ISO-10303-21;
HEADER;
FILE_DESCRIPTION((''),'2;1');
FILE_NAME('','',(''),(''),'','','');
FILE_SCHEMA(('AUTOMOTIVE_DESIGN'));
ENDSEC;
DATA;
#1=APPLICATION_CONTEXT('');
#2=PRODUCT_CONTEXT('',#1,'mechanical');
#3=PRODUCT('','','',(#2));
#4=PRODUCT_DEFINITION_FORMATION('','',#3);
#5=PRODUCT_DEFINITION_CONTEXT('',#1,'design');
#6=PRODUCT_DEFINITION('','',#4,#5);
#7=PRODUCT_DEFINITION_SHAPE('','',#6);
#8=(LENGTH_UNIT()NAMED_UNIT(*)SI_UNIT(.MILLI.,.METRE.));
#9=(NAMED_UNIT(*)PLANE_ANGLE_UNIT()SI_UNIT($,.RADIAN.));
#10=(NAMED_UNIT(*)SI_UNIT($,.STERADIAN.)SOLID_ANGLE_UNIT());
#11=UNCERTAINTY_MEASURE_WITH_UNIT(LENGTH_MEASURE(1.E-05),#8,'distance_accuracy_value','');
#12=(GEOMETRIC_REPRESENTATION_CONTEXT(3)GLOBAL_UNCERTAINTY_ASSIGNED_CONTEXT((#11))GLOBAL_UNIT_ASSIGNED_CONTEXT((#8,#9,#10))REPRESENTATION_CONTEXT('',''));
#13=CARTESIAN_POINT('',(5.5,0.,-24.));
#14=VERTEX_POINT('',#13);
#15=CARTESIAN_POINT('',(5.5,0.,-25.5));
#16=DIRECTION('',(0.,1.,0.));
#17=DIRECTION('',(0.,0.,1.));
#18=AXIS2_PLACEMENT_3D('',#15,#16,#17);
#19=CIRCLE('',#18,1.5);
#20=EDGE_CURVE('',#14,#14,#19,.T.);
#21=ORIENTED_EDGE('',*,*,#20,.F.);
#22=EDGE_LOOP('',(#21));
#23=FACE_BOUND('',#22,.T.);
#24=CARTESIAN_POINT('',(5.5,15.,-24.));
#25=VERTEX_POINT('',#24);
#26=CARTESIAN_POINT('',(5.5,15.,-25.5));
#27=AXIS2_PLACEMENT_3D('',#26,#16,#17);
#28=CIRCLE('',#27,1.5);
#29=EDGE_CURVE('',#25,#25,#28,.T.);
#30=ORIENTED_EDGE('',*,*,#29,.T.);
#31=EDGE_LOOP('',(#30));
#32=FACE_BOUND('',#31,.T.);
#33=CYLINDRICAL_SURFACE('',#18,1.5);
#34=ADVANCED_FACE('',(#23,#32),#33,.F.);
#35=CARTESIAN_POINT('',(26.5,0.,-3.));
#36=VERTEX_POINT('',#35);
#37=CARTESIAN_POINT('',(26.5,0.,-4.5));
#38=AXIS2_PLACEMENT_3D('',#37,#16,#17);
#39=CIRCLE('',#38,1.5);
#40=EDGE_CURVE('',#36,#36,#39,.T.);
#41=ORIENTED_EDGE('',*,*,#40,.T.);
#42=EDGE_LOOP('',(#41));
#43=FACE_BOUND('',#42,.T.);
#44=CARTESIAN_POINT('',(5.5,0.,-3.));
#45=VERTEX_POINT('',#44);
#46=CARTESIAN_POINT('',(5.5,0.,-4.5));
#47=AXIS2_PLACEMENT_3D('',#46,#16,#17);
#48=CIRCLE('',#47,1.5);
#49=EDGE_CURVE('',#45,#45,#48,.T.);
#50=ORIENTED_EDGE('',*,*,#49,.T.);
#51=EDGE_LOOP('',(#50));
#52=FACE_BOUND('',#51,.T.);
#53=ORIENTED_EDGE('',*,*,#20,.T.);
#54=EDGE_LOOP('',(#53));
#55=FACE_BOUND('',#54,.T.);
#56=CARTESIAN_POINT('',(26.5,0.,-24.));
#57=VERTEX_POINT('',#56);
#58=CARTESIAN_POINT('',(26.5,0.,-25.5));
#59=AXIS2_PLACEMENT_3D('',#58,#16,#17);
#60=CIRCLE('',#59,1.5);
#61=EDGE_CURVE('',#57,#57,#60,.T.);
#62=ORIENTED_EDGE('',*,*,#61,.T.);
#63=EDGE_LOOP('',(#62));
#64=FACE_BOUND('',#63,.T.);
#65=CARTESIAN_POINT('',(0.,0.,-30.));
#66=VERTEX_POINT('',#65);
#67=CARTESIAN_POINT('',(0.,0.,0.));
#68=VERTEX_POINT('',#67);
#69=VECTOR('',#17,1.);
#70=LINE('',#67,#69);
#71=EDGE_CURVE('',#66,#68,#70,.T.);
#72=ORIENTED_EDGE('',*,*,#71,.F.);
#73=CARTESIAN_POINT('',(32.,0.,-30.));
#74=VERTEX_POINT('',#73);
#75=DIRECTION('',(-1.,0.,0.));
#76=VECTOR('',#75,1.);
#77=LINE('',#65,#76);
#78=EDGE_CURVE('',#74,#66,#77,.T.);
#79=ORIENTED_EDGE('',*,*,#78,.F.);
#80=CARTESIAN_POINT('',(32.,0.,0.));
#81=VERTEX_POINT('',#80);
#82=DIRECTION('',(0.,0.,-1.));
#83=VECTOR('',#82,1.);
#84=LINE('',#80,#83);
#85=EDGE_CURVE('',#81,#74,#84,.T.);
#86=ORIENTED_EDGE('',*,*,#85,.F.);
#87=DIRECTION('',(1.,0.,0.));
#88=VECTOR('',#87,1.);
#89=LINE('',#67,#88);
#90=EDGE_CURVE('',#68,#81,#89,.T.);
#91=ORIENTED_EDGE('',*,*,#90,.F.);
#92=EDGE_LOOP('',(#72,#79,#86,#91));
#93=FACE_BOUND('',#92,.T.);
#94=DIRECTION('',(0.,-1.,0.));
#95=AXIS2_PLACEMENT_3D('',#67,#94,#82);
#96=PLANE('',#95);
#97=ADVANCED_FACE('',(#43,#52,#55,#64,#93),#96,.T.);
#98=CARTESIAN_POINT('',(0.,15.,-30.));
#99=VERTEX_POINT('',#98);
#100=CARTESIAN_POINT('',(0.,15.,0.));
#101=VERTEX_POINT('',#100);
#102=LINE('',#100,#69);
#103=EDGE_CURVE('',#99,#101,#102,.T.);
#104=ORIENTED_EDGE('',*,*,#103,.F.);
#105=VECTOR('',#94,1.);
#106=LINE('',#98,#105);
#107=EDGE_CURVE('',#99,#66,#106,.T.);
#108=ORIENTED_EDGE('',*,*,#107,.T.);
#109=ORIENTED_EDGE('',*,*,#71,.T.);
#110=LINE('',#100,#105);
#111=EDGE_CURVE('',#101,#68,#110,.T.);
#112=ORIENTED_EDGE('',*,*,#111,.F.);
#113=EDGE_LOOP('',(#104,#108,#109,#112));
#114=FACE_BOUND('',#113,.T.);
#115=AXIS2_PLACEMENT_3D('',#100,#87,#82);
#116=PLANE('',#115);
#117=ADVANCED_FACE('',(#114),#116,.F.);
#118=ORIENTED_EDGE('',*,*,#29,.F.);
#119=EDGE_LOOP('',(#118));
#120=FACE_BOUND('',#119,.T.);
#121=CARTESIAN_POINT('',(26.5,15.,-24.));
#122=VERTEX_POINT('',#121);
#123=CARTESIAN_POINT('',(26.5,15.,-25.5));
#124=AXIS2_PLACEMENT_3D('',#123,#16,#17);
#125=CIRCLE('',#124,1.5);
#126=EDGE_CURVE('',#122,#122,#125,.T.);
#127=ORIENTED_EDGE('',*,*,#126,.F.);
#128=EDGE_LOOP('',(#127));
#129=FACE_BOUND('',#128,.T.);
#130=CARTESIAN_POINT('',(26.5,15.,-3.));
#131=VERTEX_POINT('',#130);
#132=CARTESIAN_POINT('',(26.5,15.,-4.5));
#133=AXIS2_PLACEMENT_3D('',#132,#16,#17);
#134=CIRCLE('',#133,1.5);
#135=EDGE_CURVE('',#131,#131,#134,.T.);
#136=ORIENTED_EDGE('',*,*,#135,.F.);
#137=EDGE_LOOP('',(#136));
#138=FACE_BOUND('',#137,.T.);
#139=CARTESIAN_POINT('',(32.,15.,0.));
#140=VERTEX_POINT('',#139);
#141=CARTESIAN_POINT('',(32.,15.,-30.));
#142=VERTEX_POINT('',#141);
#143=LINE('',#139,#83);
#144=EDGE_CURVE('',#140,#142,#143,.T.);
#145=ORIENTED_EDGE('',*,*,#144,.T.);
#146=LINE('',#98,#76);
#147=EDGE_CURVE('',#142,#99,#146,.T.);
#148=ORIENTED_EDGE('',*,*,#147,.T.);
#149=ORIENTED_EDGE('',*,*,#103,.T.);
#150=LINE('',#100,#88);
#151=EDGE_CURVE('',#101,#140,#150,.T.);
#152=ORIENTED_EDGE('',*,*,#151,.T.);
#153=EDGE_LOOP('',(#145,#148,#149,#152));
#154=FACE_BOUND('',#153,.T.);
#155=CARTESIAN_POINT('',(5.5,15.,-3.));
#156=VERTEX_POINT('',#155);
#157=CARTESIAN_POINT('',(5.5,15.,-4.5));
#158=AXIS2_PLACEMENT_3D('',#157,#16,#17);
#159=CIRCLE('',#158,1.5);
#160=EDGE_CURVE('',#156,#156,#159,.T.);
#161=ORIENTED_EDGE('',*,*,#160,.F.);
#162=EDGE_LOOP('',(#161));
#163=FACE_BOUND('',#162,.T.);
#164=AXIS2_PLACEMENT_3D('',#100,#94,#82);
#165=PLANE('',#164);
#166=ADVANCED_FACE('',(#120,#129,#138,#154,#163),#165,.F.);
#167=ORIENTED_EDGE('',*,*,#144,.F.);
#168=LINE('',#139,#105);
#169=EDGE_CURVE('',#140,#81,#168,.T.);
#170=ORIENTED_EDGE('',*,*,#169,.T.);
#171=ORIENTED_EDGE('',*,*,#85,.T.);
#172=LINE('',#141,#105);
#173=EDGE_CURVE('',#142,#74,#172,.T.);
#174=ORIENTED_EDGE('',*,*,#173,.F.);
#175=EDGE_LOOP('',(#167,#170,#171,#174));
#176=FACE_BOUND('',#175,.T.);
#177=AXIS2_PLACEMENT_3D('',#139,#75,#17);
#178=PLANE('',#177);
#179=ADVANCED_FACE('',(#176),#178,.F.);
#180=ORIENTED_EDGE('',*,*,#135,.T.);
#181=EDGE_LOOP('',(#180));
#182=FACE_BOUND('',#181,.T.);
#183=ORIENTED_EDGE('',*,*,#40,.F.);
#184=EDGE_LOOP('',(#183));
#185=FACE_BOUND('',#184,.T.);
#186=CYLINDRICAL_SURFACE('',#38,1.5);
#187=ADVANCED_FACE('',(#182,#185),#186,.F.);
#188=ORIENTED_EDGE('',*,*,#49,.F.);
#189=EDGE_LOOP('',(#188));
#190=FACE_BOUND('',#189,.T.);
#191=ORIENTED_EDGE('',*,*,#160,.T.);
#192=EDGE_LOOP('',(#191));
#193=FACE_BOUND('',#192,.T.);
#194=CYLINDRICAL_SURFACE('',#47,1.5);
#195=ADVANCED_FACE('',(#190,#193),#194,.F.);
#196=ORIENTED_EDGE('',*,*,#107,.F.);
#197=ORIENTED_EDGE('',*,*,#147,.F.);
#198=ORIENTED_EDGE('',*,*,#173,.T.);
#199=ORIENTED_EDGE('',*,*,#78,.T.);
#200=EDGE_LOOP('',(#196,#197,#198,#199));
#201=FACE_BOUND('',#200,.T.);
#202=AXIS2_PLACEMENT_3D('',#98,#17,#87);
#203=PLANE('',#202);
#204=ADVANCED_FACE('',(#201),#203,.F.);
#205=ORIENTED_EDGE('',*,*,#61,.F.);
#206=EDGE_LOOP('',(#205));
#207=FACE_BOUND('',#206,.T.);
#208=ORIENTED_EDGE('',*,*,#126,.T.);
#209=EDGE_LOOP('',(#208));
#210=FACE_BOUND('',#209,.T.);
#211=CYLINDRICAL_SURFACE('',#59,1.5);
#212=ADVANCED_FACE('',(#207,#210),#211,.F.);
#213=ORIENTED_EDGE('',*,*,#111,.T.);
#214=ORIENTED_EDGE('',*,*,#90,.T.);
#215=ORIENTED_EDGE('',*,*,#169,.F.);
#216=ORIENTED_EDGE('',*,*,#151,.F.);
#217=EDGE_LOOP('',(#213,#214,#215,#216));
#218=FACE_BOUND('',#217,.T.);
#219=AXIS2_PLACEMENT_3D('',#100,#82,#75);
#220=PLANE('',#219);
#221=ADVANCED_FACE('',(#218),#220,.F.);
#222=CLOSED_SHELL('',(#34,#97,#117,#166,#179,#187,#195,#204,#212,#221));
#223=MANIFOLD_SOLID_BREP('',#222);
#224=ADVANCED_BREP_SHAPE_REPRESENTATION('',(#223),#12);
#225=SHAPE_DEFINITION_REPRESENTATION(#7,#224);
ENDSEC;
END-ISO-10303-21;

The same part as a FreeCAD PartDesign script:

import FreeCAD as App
import Part
import Sketcher

doc = App.newDocument("Part")
body = doc.addObject("PartDesign::Body", "Body")

# Sketch on XZ plane
sketch1 = body.newObject("Sketcher::SketchObject", "Sketch")
sketch1.AttachmentSupport = (doc.getObject("XZ_Plane"), [""])
sketch1.MapMode = "FlatFace"
sketch1.addGeometry([
    Part.LineSegment(App.Vector(0, -30, 0), App.Vector(0, 0, 0)),
    Part.LineSegment(App.Vector(0, 0, 0), App.Vector(32, 0, 0)),
    Part.LineSegment(App.Vector(32, 0, 0), App.Vector(32, -30, 0)),
    Part.LineSegment(App.Vector(32, -30, 0), App.Vector(0, -30, 0)),
], False)
sketch1.addConstraint([
    Sketcher.Constraint("Coincident", 0, 2, 1, 1),
    Sketcher.Constraint("Coincident", 1, 2, 2, 1),
    Sketcher.Constraint("Coincident", 2, 2, 3, 1),
    Sketcher.Constraint("Coincident", 3, 2, 0, 1),
    Sketcher.Constraint("Vertical", 0),
    Sketcher.Constraint("Horizontal", 1),
    Sketcher.Constraint("Vertical", 2),
    Sketcher.Constraint("Horizontal", 3),
    Sketcher.Constraint("Coincident", 0, 2, -1, 1),
    Sketcher.Constraint("DistanceX", 1, 1, 1, 2, 32.0),
    Sketcher.Constraint("DistanceY", 0, 1, 0, 2, 30.0),
])
pad1 = body.newObject("PartDesign::Pad", "Pad")
pad1.Profile = sketch1
pad1.Length = 15
pad1.Reversed = True

# Sketch on XZ plane
sketch2 = body.newObject("Sketcher::SketchObject", "Sketch001")
sketch2.AttachmentSupport = (doc.getObject("XZ_Plane"), [""])
sketch2.MapMode = "FlatFace"
sketch2.AttachmentOffset = App.Placement(App.Vector(0, 0, -15), App.Rotation())
sketch2.addGeometry([
    Part.Circle(App.Vector(5.5, -4.5, 0), App.Vector(0, 0, 1), 1.5),
    Part.Circle(App.Vector(5.5, -25.5, 0), App.Vector(0, 0, 1), 1.5),
    Part.Circle(App.Vector(26.5, -25.5, 0), App.Vector(0, 0, 1), 1.5),
    Part.Circle(App.Vector(26.5, -4.5, 0), App.Vector(0, 0, 1), 1.5),
], False)
sketch2.addConstraint([
    Sketcher.Constraint("Equal", 0, 1),
    Sketcher.Constraint("Equal", 1, 2),
    Sketcher.Constraint("Equal", 2, 3),
    Sketcher.Constraint("Horizontal", 1, 3, 2, 3),
    Sketcher.Constraint("Horizontal", 0, 3, 3, 3),
    Sketcher.Constraint("Vertical", 0, 3, 1, 3),
    Sketcher.Constraint("Vertical", 2, 3, 3, 3),
    Sketcher.Constraint("Diameter", 0, 3.0),
    Sketcher.Constraint("DistanceY", 1, 3, 0, 3, 21.0),
    Sketcher.Constraint("DistanceX", 1, 3, 2, 3, 21.0),
    Sketcher.Constraint("DistanceX", -1, 1, 0, 3, 5.5),
    Sketcher.Constraint("DistanceY", 0, 3, -1, 1, 4.5),
])
pocket1 = body.newObject("PartDesign::Pocket", "Pocket")
pocket1.Profile = sketch2
pocket1.Length = 15
pocket1.Reversed = True

doc.recompute()
